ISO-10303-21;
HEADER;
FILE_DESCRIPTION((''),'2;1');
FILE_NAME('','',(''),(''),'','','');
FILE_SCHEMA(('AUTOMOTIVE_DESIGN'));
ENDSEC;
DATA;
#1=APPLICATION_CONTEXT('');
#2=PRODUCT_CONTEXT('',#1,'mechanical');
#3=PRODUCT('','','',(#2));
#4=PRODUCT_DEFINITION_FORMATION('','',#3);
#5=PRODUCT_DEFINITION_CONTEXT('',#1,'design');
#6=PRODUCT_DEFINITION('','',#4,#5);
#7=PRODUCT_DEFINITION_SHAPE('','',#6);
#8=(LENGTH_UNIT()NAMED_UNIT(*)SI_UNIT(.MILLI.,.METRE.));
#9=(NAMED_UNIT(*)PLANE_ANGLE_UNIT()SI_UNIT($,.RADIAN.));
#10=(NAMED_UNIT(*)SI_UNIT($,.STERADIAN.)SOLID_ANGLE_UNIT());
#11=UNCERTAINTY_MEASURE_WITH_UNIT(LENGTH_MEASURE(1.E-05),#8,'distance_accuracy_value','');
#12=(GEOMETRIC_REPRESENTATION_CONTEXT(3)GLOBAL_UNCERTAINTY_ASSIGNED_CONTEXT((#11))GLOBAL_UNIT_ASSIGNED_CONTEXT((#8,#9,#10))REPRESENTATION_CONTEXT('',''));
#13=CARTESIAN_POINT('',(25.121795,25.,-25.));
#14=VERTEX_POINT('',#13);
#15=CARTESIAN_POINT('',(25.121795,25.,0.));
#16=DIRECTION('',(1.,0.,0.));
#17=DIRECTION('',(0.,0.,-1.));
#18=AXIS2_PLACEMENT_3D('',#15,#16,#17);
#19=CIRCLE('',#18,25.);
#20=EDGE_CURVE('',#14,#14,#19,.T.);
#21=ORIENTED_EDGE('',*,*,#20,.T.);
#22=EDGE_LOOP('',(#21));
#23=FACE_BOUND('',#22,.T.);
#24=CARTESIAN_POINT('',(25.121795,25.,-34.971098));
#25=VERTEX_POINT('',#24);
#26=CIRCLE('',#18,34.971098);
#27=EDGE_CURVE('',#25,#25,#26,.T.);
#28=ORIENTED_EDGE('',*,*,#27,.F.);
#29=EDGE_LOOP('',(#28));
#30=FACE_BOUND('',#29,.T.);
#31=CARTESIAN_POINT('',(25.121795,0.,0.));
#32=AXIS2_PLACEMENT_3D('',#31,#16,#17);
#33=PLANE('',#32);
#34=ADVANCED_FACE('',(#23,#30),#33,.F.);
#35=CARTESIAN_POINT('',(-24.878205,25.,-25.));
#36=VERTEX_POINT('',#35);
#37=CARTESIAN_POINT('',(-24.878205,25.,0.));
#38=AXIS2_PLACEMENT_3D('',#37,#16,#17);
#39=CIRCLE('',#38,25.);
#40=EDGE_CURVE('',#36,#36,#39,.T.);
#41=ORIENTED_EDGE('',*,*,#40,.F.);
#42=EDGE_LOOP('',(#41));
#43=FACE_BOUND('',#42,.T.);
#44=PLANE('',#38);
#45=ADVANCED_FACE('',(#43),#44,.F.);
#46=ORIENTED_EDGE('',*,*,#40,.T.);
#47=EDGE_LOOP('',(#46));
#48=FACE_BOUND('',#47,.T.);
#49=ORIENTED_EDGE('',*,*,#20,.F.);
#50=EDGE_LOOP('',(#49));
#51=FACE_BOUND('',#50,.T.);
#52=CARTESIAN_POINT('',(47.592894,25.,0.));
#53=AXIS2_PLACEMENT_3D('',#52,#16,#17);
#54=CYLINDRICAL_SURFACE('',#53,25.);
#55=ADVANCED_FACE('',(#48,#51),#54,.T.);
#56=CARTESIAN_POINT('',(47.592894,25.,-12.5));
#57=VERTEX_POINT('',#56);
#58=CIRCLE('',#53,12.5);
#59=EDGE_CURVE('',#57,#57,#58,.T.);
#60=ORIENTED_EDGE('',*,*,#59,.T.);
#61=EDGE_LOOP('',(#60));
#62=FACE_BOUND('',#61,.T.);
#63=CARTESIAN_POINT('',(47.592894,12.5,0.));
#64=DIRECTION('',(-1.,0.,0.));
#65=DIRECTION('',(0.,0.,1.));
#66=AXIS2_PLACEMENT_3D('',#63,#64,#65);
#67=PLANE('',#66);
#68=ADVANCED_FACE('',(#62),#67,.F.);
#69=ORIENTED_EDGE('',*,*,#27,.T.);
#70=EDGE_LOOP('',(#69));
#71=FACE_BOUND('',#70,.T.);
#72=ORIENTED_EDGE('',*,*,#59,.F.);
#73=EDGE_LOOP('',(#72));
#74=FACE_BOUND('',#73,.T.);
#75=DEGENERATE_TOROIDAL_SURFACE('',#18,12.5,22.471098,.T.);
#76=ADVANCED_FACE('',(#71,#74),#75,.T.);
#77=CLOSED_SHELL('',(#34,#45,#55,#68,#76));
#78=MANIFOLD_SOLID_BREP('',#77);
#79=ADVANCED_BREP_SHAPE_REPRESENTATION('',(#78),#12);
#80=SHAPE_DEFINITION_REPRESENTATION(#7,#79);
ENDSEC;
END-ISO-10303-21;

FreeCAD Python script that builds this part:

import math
import FreeCAD as App
import Part
import Sketcher

V = App.Vector

doc = App.newDocument("Part")
body = doc.addObject("PartDesign::Body", "Body")

sketch1 = body.newObject("Sketcher::SketchObject", "Sketch")
sketch1.AttachmentSupport = (doc.getObject("XY_Plane"), [""])
sketch1.MapMode = "FlatFace"
sketch1.addGeometry([
    Part.LineSegment(V(-25, 0, 0), V(25, 0, 0)),
    Part.LineSegment(V(25, 0, 0), V(25, -10, 0)),
    Part.ArcOfCircle(Part.Circle(V(25, 12, 0), V(0, 0, 1), 22), math.radians(-90), math.radians(0)),
    Part.LineSegment(V(48, 12, 0), V(48, 25, 0)),
    Part.LineSegment(V(48, 25, 0), V(-25, 25, 0)),
    Part.LineSegment(V(-25, 25, 0), V(-25, 0, 0)),
], False)
sketch1.addGeometry(Part.LineSegment(V(48, 25, 0), V(-25, 25, 0)), True)
sketch1.addConstraint([
    Sketcher.Constraint("Coincident", 0, 2, 1, 1),
    Sketcher.Constraint("Coincident", 1, 2, 2, 1),
    Sketcher.Constraint("Tangent", 2, 2, 3, 1),
    Sketcher.Constraint("Coincident", 3, 2, 4, 1),
    Sketcher.Constraint("Coincident", 4, 2, 5, 1),
    Sketcher.Constraint("Coincident", 5, 2, 0, 1),
    Sketcher.Constraint("Horizontal", 0),
    Sketcher.Constraint("Vertical", 1),
    Sketcher.Constraint("Vertical", 3),
    Sketcher.Constraint("Horizontal", 4),
    Sketcher.Constraint("Vertical", 5),
    Sketcher.Constraint("Horizontal", 6),
    Sketcher.Constraint("Coincident", 6, 1, 3, 2),
    Sketcher.Constraint("PointOnObject", 0, 2, -1),
    Sketcher.Constraint("Vertical", 2, 3, 0, 2),
    Sketcher.Constraint("Vertical", 5, 2, 6, 2),
    Sketcher.Constraint("DistanceX", 0, 1, 0, 2, 50.0),
    Sketcher.Constraint("DistanceY", 5, 2, 5, 1, 25.0),
    Sketcher.Constraint("DistanceY", 3, 1, 3, 2, 12.5),
    Sketcher.Constraint("Radius", 2, 22.471098),
    Sketcher.Constraint("DistanceX", -1, 1, 2, 3, 25.121795),
])
revolution = body.newObject("PartDesign::Revolution", "Revolution")
revolution.Profile = sketch1
revolution.ReferenceAxis = (sketch1, ["Axis0"])
revolution.Angle = 360

doc.recompute()
